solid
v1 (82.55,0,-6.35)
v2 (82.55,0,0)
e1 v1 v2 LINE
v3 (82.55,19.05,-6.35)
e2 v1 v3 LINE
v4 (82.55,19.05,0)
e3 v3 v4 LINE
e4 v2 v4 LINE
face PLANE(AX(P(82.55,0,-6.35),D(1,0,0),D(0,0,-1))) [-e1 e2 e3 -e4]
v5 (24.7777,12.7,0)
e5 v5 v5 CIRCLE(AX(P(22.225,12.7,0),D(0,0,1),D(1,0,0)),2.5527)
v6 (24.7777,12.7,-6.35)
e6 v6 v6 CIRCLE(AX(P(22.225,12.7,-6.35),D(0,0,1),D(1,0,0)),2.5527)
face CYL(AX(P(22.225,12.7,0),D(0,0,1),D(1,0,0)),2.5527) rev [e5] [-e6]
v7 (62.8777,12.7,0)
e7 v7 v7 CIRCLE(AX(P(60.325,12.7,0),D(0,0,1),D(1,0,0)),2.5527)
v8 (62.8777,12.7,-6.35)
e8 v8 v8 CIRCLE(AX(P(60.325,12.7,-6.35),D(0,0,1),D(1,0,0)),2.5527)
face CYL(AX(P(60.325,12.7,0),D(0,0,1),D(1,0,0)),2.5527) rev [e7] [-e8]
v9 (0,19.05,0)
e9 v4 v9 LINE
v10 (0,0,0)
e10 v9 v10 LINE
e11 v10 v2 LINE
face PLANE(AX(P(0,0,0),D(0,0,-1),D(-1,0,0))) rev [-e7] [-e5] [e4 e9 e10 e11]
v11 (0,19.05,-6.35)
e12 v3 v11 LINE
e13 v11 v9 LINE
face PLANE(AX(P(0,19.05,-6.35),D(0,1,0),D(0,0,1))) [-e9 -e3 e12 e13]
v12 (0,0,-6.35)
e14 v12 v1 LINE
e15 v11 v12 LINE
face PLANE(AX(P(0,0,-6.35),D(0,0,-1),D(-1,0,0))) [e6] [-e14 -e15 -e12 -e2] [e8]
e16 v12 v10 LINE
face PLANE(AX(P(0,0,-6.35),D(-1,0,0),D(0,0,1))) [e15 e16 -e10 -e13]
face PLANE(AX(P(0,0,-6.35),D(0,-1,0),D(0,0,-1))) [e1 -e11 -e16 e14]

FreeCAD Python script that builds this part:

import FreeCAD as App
import Part
import Sketcher
from FreeCAD import Vector
Q = App.Units.Quantity


def add_polygon(sketch, points):
    """Adds a closed chain of lines whose ends are joined by coincident constraints."""
    first, n = sketch.GeometryCount, len(points)
    for a, b in zip(points, points[1:] + points[:1]):
        sketch.addGeometry(Part.LineSegment(App.Vector(*a, 0), App.Vector(*b, 0)), False)
    for i in range(n):
        sketch.addConstraint(Sketcher.Constraint("Coincident", first + i, 2, first + (i + 1) % n, 1))

doc = App.newDocument("Part")
body = doc.addObject("PartDesign::Body", "Body")

# Sketch on XY plane
sketch1 = body.newObject("Sketcher::SketchObject", "Sketch")
sketch1.AttachmentSupport = (doc.getObject("XY_Plane"), [""])
sketch1.MapMode = "FlatFace"
add_polygon(sketch1, [(0, 19), (0, 0), (83, 0), (83, 19)])  # lines 0-3
sketch1.addConstraint(Sketcher.Constraint("Vertical", 0))
sketch1.addConstraint(Sketcher.Constraint("Horizontal", 1))
sketch1.addConstraint(Sketcher.Constraint("Vertical", 2))
sketch1.addConstraint(Sketcher.Constraint("Horizontal", 3))
sketch1.addConstraint(Sketcher.Constraint("Coincident", 0, 2, -1, 1))
sketch1.addConstraint(Sketcher.Constraint("DistanceX", 1, 1, 1, 2, Q("3.25 in")))
sketch1.addConstraint(Sketcher.Constraint("DistanceY", 0, 2, 0, 1, Q("0.75 in")))
pad1 = body.newObject("PartDesign::Pad", "Pad")
pad1.Profile = sketch1
pad1.Length = Q("0.25 in")
pad1.Reversed = True

# Sketch on XY plane
sketch2 = body.newObject("Sketcher::SketchObject", "Sketch001")
sketch2.AttachmentSupport = (doc.getObject("XY_Plane"), [""])
sketch2.MapMode = "FlatFace"
sketch2.addGeometry(Part.Circle(Vector(22.2, 12.7, 0), Vector(0, 0, 1), 2.6), False)
sketch2.addGeometry(Part.Circle(Vector(60.3, 12.7, 0), Vector(0, 0, 1), 2.6), False)
sketch2.addConstraint(Sketcher.Constraint("Equal", 0, 1))
sketch2.addConstraint(Sketcher.Constraint("Horizontal", 0, 3, 1, 3))
sketch2.addConstraint(Sketcher.Constraint("Diameter", 0, Q("0.201 in")))
sketch2.addConstraint(Sketcher.Constraint("DistanceY", -1, 1, 0, 3, Q("0.5 in")))
sketch2.addConstraint(Sketcher.Constraint("DistanceX", 0, 3, 1, 3, Q("1.5 in")))
sketch2.addConstraint(Sketcher.Constraint("DistanceX", -1, 1, 0, 3, Q("0.875 in")))
doc.recompute()
hole = body.newObject("PartDesign::Hole", "Hole")
hole.Profile = sketch2
hole.ThreadType = "None"
hole.Diameter = Q("0.201 in")
hole.DepthType = "ThroughAll"

doc.recompute()
